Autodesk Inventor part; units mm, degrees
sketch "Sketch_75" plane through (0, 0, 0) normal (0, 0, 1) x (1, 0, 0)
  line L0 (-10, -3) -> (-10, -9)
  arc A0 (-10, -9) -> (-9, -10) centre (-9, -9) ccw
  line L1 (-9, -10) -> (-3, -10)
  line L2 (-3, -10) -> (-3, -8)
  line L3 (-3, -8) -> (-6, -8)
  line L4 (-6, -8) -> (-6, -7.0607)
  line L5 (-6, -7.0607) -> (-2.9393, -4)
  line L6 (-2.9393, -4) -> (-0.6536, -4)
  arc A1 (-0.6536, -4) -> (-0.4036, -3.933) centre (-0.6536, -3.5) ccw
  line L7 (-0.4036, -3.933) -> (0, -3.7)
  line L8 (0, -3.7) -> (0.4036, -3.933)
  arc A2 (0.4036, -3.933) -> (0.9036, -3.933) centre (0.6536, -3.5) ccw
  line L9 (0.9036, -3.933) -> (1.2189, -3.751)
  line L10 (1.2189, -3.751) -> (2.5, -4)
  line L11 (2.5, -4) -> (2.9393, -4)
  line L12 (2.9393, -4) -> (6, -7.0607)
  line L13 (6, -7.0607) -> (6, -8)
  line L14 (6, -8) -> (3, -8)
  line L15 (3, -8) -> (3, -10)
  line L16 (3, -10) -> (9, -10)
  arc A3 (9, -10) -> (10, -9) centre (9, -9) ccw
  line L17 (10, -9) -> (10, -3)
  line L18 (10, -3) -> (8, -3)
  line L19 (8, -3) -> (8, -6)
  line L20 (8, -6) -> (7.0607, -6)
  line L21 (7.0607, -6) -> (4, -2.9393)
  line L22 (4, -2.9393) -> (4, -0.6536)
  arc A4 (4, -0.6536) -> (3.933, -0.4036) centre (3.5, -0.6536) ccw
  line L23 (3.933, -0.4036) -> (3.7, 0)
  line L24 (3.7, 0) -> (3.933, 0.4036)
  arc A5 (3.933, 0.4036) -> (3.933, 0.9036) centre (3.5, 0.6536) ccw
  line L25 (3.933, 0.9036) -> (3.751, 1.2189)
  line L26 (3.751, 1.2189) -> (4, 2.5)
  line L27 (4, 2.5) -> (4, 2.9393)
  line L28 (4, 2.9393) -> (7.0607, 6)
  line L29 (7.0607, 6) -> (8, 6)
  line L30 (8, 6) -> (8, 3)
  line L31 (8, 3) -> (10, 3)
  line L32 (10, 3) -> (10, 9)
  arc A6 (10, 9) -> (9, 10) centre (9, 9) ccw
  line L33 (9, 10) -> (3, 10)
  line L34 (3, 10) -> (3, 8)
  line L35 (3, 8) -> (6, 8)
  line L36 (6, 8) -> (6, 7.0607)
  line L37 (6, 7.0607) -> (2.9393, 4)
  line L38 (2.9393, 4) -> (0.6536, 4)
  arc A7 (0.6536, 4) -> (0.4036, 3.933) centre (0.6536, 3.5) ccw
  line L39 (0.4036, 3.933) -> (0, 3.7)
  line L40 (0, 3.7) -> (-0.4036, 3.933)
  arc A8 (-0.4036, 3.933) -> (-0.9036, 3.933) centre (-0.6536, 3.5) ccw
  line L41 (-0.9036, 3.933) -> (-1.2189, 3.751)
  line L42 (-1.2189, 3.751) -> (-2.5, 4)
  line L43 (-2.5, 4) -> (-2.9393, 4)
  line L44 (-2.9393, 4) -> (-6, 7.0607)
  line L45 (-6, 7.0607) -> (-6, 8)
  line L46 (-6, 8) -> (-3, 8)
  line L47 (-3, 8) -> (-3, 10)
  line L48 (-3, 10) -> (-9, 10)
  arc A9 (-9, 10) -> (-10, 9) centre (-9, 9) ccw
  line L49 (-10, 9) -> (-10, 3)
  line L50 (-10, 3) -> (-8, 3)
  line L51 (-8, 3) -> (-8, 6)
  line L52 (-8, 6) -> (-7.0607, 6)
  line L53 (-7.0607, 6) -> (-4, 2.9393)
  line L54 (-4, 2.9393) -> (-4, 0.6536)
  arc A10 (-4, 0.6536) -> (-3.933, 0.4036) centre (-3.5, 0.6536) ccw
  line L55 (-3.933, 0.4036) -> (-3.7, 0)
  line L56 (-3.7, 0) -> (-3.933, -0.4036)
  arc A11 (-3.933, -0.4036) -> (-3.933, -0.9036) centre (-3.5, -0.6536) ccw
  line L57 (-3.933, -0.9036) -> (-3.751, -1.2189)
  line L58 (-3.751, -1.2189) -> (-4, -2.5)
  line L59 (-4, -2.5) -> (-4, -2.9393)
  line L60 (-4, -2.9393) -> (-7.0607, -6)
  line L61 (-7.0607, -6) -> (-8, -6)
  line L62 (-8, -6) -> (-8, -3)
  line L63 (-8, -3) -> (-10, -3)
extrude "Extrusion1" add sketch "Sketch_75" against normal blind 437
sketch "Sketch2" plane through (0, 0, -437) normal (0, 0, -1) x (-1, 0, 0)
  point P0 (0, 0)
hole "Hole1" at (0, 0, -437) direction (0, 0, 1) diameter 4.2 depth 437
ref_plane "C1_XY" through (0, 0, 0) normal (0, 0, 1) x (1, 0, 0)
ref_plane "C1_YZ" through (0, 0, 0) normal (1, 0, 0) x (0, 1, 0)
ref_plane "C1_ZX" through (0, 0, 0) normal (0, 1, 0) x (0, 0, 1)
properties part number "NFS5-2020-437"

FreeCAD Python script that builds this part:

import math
import FreeCAD as App
import Part
import Sketcher

V = App.Vector
Q = App.Units.Quantity

doc = App.newDocument("Part")
body = doc.addObject("PartDesign::Body", "Body")

sketch1 = body.newObject("Sketcher::SketchObject", "Sketch")
sketch1.AttachmentSupport = (doc.getObject("XY_Plane"), [""])
sketch1.MapMode = "FlatFace"
sketch1.addGeometry([
    Part.LineSegment(V(-8, -3, 0), V(-10, -3, 0)),
    Part.LineSegment(V(-10, -3, 0), V(-10, -9, 0)),
    Part.ArcOfCircle(Part.Circle(V(-9, -9, 0), V(0, 0, 1), 1), math.radians(180), math.radians(270)),
    Part.LineSegment(V(-9, -10, 0), V(-3, -10, 0)),
    Part.LineSegment(V(-3, -10, 0), V(-3, -8, 0)),
    Part.LineSegment(V(-3, -8, 0), V(-6, -8, 0)),
    Part.LineSegment(V(-6, -8, 0), V(-6, -7.06, 0)),
    Part.LineSegment(V(-6, -7.06, 0), V(-2.94, -4, 0)),
    Part.LineSegment(V(-2.94, -4, 0), V(-0.65, -4, 0)),
    Part.ArcOfCircle(Part.Circle(V(-0.65, -3.5, 0), V(0, 0, 1), 0.5), math.radians(-90), math.radians(-60)),
    Part.LineSegment(V(-0.4, -3.93, 0), V(0, -3.7, 0)),
    Part.LineSegment(V(0, -3.7, 0), V(0.4, -3.93, 0)),
    Part.ArcOfCircle(Part.Circle(V(0.65, -3.5, 0), V(0, 0, 1), 0.5), math.radians(-120), math.radians(-60)),
    Part.LineSegment(V(0.9, -3.93, 0), V(1.22, -3.75, 0)),
    Part.LineSegment(V(1.22, -3.75, 0), V(2.5, -4, 0)),
    Part.LineSegment(V(2.5, -4, 0), V(2.94, -4, 0)),
    Part.LineSegment(V(2.94, -4, 0), V(6, -7.06, 0)),
    Part.LineSegment(V(6, -7.06, 0), V(6, -8, 0)),
    Part.LineSegment(V(6, -8, 0), V(3, -8, 0)),
    Part.LineSegment(V(3, -8, 0), V(3, -10, 0)),
    Part.LineSegment(V(3, -10, 0), V(9, -10, 0)),
    Part.ArcOfCircle(Part.Circle(V(9, -9, 0), V(0, 0, 1), 1), math.radians(-90), math.radians(0)),
    Part.LineSegment(V(10, -9, 0), V(10, -3, 0)),
    Part.LineSegment(V(10, -3, 0), V(8, -3, 0)),
    Part.LineSegment(V(8, -3, 0), V(8, -6, 0)),
    Part.LineSegment(V(8, -6, 0), V(7.06, -6, 0)),
    Part.LineSegment(V(7.06, -6, 0), V(4, -2.94, 0)),
    Part.LineSegment(V(4, -2.94, 0), V(4, -0.65, 0)),
    Part.ArcOfCircle(Part.Circle(V(3.5, -0.65, 0), V(0, 0, 1), 0.5), math.radians(0), math.radians(30)),
    Part.LineSegment(V(3.93, -0.4, 0), V(3.7, 0, 0)),
    Part.LineSegment(V(3.7, 0, 0), V(3.93, 0.4, 0)),
    Part.ArcOfCircle(Part.Circle(V(3.5, 0.65, 0), V(0, 0, 1), 0.5), math.radians(-30), math.radians(30)),
    Part.LineSegment(V(3.93, 0.9, 0), V(3.75, 1.22, 0)),
    Part.LineSegment(V(3.75, 1.22, 0), V(4, 2.5, 0)),
    Part.LineSegment(V(4, 2.5, 0), V(4, 2.94, 0)),
    Part.LineSegment(V(4, 2.94, 0), V(7.06, 6, 0)),
    Part.LineSegment(V(7.06, 6, 0), V(8, 6, 0)),
    Part.LineSegment(V(8, 6, 0), V(8, 3, 0)),
    Part.LineSegment(V(8, 3, 0), V(10, 3, 0)),
    Part.LineSegment(V(10, 3, 0), V(10, 9, 0)),
    Part.ArcOfCircle(Part.Circle(V(9, 9, 0), V(0, 0, 1), 1), math.radians(0), math.radians(90)),
    Part.LineSegment(V(9, 10, 0), V(3, 10, 0)),
    Part.LineSegment(V(3, 10, 0), V(3, 8, 0)),
    Part.LineSegment(V(3, 8, 0), V(6, 8, 0)),
    Part.LineSegment(V(6, 8, 0), V(6, 7.06, 0)),
    Part.LineSegment(V(6, 7.06, 0), V(2.94, 4, 0)),
    Part.LineSegment(V(2.94, 4, 0), V(0.65, 4, 0)),
    Part.ArcOfCircle(Part.Circle(V(0.65, 3.5, 0), V(0, 0, 1), 0.5), math.radians(90), math.radians(120)),
    Part.LineSegment(V(0.4, 3.93, 0), V(0, 3.7, 0)),
    Part.LineSegment(V(0, 3.7, 0), V(-0.4, 3.93, 0)),
    Part.ArcOfCircle(Part.Circle(V(-0.65, 3.5, 0), V(0, 0, 1), 0.5), math.radians(60), math.radians(120)),
    Part.LineSegment(V(-0.9, 3.93, 0), V(-1.22, 3.75, 0)),
    Part.LineSegment(V(-1.22, 3.75, 0), V(-2.5, 4, 0)),
    Part.LineSegment(V(-2.5, 4, 0), V(-2.94, 4, 0)),
    Part.LineSegment(V(-2.94, 4, 0), V(-6, 7.06, 0)),
    Part.LineSegment(V(-6, 7.06, 0), V(-6, 8, 0)),
    Part.LineSegment(V(-6, 8, 0), V(-3, 8, 0)),
    Part.LineSegment(V(-3, 8, 0), V(-3, 10, 0)),
    Part.LineSegment(V(-3, 10, 0), V(-9, 10, 0)),
    Part.ArcOfCircle(Part.Circle(V(-9, 9, 0), V(0, 0, 1), 1), math.radians(90), math.radians(180)),
    Part.LineSegment(V(-10, 9, 0), V(-10, 3, 0)),
    Part.LineSegment(V(-10, 3, 0), V(-8, 3, 0)),
    Part.LineSegment(V(-8, 3, 0), V(-8, 6, 0)),
    Part.LineSegment(V(-8, 6, 0), V(-7.06, 6, 0)),
    Part.LineSegment(V(-7.06, 6, 0), V(-4, 2.94, 0)),
    Part.LineSegment(V(-4, 2.94, 0), V(-4, 0.65, 0)),
    Part.ArcOfCircle(Part.Circle(V(-3.5, 0.65, 0), V(0, 0, 1), 0.5), math.radians(180), math.radians(210)),
    Part.LineSegment(V(-3.93, 0.4, 0), V(-3.7, 0, 0)),
    Part.LineSegment(V(-3.7, 0, 0), V(-3.93, -0.4, 0)),
    Part.ArcOfCircle(Part.Circle(V(-3.5, -0.65, 0), V(0, 0, 1), 0.5), math.radians(150), math.radians(210)),
    Part.LineSegment(V(-3.93, -0.9, 0), V(-3.75, -1.22, 0)),
    Part.LineSegment(V(-3.75, -1.22, 0), V(-4, -2.5, 0)),
    Part.LineSegment(V(-4, -2.5, 0), V(-4, -2.94, 0)),
    Part.LineSegment(V(-4, -2.94, 0), V(-7.06, -6, 0)),
    Part.LineSegment(V(-7.06, -6, 0), V(-8, -6, 0)),
    Part.LineSegment(V(-8, -6, 0), V(-8, -3, 0)),
], False)
sketch1.addConstraint([
    Sketcher.Constraint("Coincident", 0, 2, 1, 1),
    Sketcher.Constraint("Tangent", 1, 2, 2, 1),
    Sketcher.Constraint("Tangent", 2, 2, 3, 1),
    Sketcher.Constraint("Coincident", 3, 2, 4, 1),
    Sketcher.Constraint("Coincident", 4, 2, 5, 1),
    Sketcher.Constraint("Coincident", 5, 2, 6, 1),
    Sketcher.Constraint("Coincident", 6, 2, 7, 1),
    Sketcher.Constraint("Coincident", 7, 2, 8, 1),
    Sketcher.Constraint("Tangent", 8, 2, 9, 1),
    Sketcher.Constraint("Tangent", 9, 2, 10, 1),
    Sketcher.Constraint("Coincident", 10, 2, 11, 1),
    Sketcher.Constraint("Tangent", 11, 2, 12, 1),
    Sketcher.Constraint("Tangent", 12, 2, 13, 1),
    Sketcher.Constraint("Coincident", 13, 2, 14, 1),
    Sketcher.Constraint("Coincident", 14, 2, 15, 1),
    Sketcher.Constraint("Coincident", 15, 2, 16, 1),
    Sketcher.Constraint("Coincident", 16, 2, 17, 1),
    Sketcher.Constraint("Coincident", 17, 2, 18, 1),
    Sketcher.Constraint("Coincident", 18, 2, 19, 1),
    Sketcher.Constraint("Coincident", 19, 2, 20, 1),
    Sketcher.Constraint("Tangent", 20, 2, 21, 1),
    Sketcher.Constraint("Tangent", 21, 2, 22, 1),
    Sketcher.Constraint("Coincident", 22, 2, 23, 1),
    Sketcher.Constraint("Coincident", 23, 2, 24, 1),
    Sketcher.Constraint("Coincident", 24, 2, 25, 1),
    Sketcher.Constraint("Coincident", 25, 2, 26, 1),
    Sketcher.Constraint("Coincident", 26, 2, 27, 1),
    Sketcher.Constraint("Tangent", 27, 2, 28, 1),
    Sketcher.Constraint("Tangent", 28, 2, 29, 1),
    Sketcher.Constraint("Coincident", 29, 2, 30, 1),
    Sketcher.Constraint("Tangent", 30, 2, 31, 1),
    Sketcher.Constraint("Tangent", 31, 2, 32, 1),
    Sketcher.Constraint("Coincident", 32, 2, 33, 1),
    Sketcher.Constraint("Coincident", 33, 2, 34, 1),
    Sketcher.Constraint("Coincident", 34, 2, 35, 1),
    Sketcher.Constraint("Coincident", 35, 2, 36, 1),
    Sketcher.Constraint("Coincident", 36, 2, 37, 1),
    Sketcher.Constraint("Coincident", 37, 2, 38, 1),
    Sketcher.Constraint("Coincident", 38, 2, 39, 1),
    Sketcher.Constraint("Tangent", 39, 2, 40, 1),
    Sketcher.Constraint("Tangent", 40, 2, 41, 1),
    Sketcher.Constraint("Coincident", 41, 2, 42, 1),
    Sketcher.Constraint("Coincident", 42, 2, 43, 1),
    Sketcher.Constraint("Coincident", 43, 2, 44, 1),
    Sketcher.Constraint("Coincident", 44, 2, 45, 1),
    Sketcher.Constraint("Coincident", 45, 2, 46, 1),
    Sketcher.Constraint("Tangent", 46, 2, 47, 1),
    Sketcher.Constraint("Tangent", 47, 2, 48, 1),
    Sketcher.Constraint("Coincident", 48, 2, 49, 1),
    Sketcher.Constraint("Tangent", 49, 2, 50, 1),
    Sketcher.Constraint("Tangent", 50, 2, 51, 1),
    Sketcher.Constraint("Coincident", 51, 2, 52, 1),
    Sketcher.Constraint("Coincident", 52, 2, 53, 1),
    Sketcher.Constraint("Coincident", 53, 2, 54, 1),
    Sketcher.Constraint("Coincident", 54, 2, 55, 1),
    Sketcher.Constraint("Coincident", 55, 2, 56, 1),
    Sketcher.Constraint("Coincident", 56, 2, 57, 1),
    Sketcher.Constraint("Coincident", 57, 2, 58, 1),
    Sketcher.Constraint("Tangent", 58, 2, 59, 1),
    Sketcher.Constraint("Tangent", 59, 2, 60, 1),
    Sketcher.Constraint("Coincident", 60, 2, 61, 1),
    Sketcher.Constraint("Coincident", 61, 2, 62, 1),
    Sketcher.Constraint("Coincident", 62, 2, 63, 1),
    Sketcher.Constraint("Coincident", 63, 2, 64, 1),
    Sketcher.Constraint("Coincident", 64, 2, 65, 1),
    Sketcher.Constraint("Tangent", 65, 2, 66, 1),
    Sketcher.Constraint("Tangent", 66, 2, 67, 1),
    Sketcher.Constraint("Coincident", 67, 2, 68, 1),
    Sketcher.Constraint("Tangent", 68, 2, 69, 1),
    Sketcher.Constraint("Tangent", 69, 2, 70, 1),
    Sketcher.Constraint("Coincident", 70, 2, 71, 1),
    Sketcher.Constraint("Coincident", 71, 2, 72, 1),
    Sketcher.Constraint("Coincident", 72, 2, 73, 1),
    Sketcher.Constraint("Coincident", 73, 2, 74, 1),
    Sketcher.Constraint("Coincident", 74, 2, 75, 1),
    Sketcher.Constraint("Coincident", 75, 2, 0, 1),
    Sketcher.Constraint("Horizontal", 0),
    Sketcher.Constraint("Vertical", 1),
    Sketcher.Constraint("Horizontal", 3),
    Sketcher.Constraint("Vertical", 4),
    Sketcher.Constraint("Horizontal", 5),
    Sketcher.Constraint("Vertical", 6),
    Sketcher.Constraint("Horizontal", 8),
    Sketcher.Constraint("Horizontal", 15),
    Sketcher.Constraint("Vertical", 17),
    Sketcher.Constraint("Horizontal", 18),
    Sketcher.Constraint("Vertical", 19),
    Sketcher.Constraint("Horizontal", 20),
    Sketcher.Constraint("Vertical", 22),
    Sketcher.Constraint("Horizontal", 23),
    Sketcher.Constraint("Vertical", 24),
    Sketcher.Constraint("Horizontal", 25),
    Sketcher.Constraint("Vertical", 27),
    Sketcher.Constraint("Vertical", 34),
    Sketcher.Constraint("Horizontal", 36),
    Sketcher.Constraint("Vertical", 37),
    Sketcher.Constraint("Horizontal", 38),
    Sketcher.Constraint("Vertical", 39),
    Sketcher.Constraint("Horizontal", 41),
    Sketcher.Constraint("Vertical", 42),
    Sketcher.Constraint("Horizontal", 43),
    Sketcher.Constraint("Vertical", 44),
    Sketcher.Constraint("Horizontal", 46),
    Sketcher.Constraint("Horizontal", 53),
    Sketcher.Constraint("Vertical", 55),
    Sketcher.Constraint("Horizontal", 56),
    Sketcher.Constraint("Vertical", 57),
    Sketcher.Constraint("Horizontal", 58),
    Sketcher.Constraint("Vertical", 60),
    Sketcher.Constraint("Horizontal", 61),
    Sketcher.Constraint("Vertical", 62),
    Sketcher.Constraint("Horizontal", 63),
    Sketcher.Constraint("Vertical", 65),
    Sketcher.Constraint("Vertical", 72),
    Sketcher.Constraint("Horizontal", 74),
    Sketcher.Constraint("Vertical", 75),
    Sketcher.Constraint("Equal", 9, 12),
    Sketcher.Constraint("Equal", 2, 21),
    Sketcher.Constraint("Equal", 12, 28),
    Sketcher.Constraint("Equal", 28, 31),
    Sketcher.Constraint("Equal", 21, 40),
    Sketcher.Constraint("Equal", 31, 47),
    Sketcher.Constraint("Equal", 47, 50),
    Sketcher.Constraint("Equal", 40, 59),
    Sketcher.Constraint("Equal", 50, 66),
    Sketcher.Constraint("Equal", 66, 69),
    Sketcher.Constraint("Symmetric", 2, 3, 40, 3, -1, 1),
    Sketcher.Constraint("Symmetric", 9, 3, 47, 3, -1, 1),
    Sketcher.Constraint("Symmetric", 12, 3, 50, 3, -1, 1),
    Sketcher.Constraint("Symmetric", 21, 3, 59, 3, -1, 1),
    Sketcher.Constraint("Symmetric", 28, 3, 66, 3, -1, 1),
    Sketcher.Constraint("Symmetric", 31, 3, 69, 3, -1, 1),
    Sketcher.Constraint("Symmetric", 4, 2, 42, 2, -1, 1),
    Sketcher.Constraint("Symmetric", 6, 2, 44, 2, -1, 1),
    Sketcher.Constraint("Symmetric", 10, 2, 48, 2, -1, 1),
    Sketcher.Constraint("Symmetric", 13, 2, 51, 2, -1, 1),
    Sketcher.Constraint("Symmetric", 14, 2, 52, 2, -1, 1),
    Sketcher.Constraint("Symmetric", 16, 2, 54, 2, -1, 1),
    Sketcher.Constraint("Symmetric", 18, 2, 56, 2, -1, 1),
    Sketcher.Constraint("Symmetric", 23, 2, 61, 2, -1, 1),
    Sketcher.Constraint("Symmetric", 25, 2, 63, 2, -1, 1),
    Sketcher.Constraint("Symmetric", 29, 2, 67, 2, -1, 1),
    Sketcher.Constraint("Symmetric", 32, 2, 70, 2, -1, 1),
    Sketcher.Constraint("Symmetric", 33, 2, 71, 2, -1, 1),
    Sketcher.Constraint("Symmetric", 35, 2, 73, 2, -1, 1),
    Sketcher.Constraint("Symmetric", 37, 2, 75, 2, -1, 1),
    Sketcher.Constraint("Symmetric", 9, 3, 12, 3, -2),
    Sketcher.Constraint("Symmetric", 2, 3, 21, 3, -2),
    Sketcher.Constraint("Symmetric", 31, 3, 66, 3, -2),
    Sketcher.Constraint("Symmetric", 7, 2, 15, 2, -2),
    Sketcher.Constraint("Symmetric", 6, 2, 16, 2, -2),
    Sketcher.Constraint("Symmetric", 4, 2, 18, 2, -2),
    Sketcher.Constraint("Symmetric", 37, 2, 61, 2, -2),
    Sketcher.Constraint("Symmetric", 35, 2, 63, 2, -2),
    Sketcher.Constraint("Symmetric", 34, 2, 64, 2, -2),
    Sketcher.Constraint("PointOnObject", 10, 2, -2),
    Sketcher.Constraint("PointOnObject", 29, 2, -1),
    Sketcher.Constraint("Parallel", 10, 13),
    Sketcher.Constraint("Perpendicular", 7, 16),
    Sketcher.Constraint("Parallel", 16, 26),
    Sketcher.Constraint("Perpendicular", 13, 29),
    Sketcher.Constraint("Parallel", 29, 32),
    Sketcher.Constraint("Perpendicular", 14, 33),
    Sketcher.Constraint("Perpendicular", 26, 35),
    Sketcher.Constraint("Parallel", 35, 45),
    Sketcher.Constraint("Perpendicular", 45, 54),
    Sketcher.Constraint("Perpendicular", 64, 73),
    Sketcher.Constraint("Equal", 58, 1),
    Sketcher.Constraint("Equal", 61, 4),
    Sketcher.Constraint("Equal", 74, 6),
    Sketcher.Constraint("Equal", 56, 24),
    Sketcher.Constraint("Equal", 46, 27),
    Sketcher.Constraint("Equal", 53, 34),
    Sketcher.Constraint("Equal", 16, 26),
    Sketcher.Constraint("Equal", 11, 29),
    Sketcher.Constraint("Radius", 2, Q("1 mm")),
    Sketcher.Constraint("Radius", 9, Q("0.5 mm")),
    Sketcher.Constraint("DistanceX", 0, 2, 0, 1, Q("2 mm")),
    Sketcher.Constraint("DistanceX", 3, 1, 3, 2, Q("6 mm")),
    Sketcher.Constraint("DistanceX", 5, 2, 5, 1, Q("3 mm")),
    Sketcher.Constraint("Angle", 14, Q("-10.999 deg")),
    Sketcher.Constraint("DistanceX", 2, 3, -1, 1, Q("9 mm")),
    Sketcher.Constraint("DistanceY", 7, 2, -1, 1, Q("4 mm")),
    Sketcher.Constraint("DistanceY", 10, 2, -1, 1, Q("3.7 mm")),
    Sketcher.Constraint("DistanceX", -1, 1, 14, 2, Q("2.5 mm")),
    Sketcher.Constraint("Distance", 10, Q("0.466 mm")),
    Sketcher.Constraint("DistanceX", 8, 1, 8, 2, Q("2.2857 mm")),
])
pad1 = body.newObject("PartDesign::Pad", "Pad")
pad1.Profile = sketch1
pad1.Length = 437
pad1.Reversed = True

sketch2 = body.newObject("Sketcher::SketchObject", "Sketch001")
sketch2.AttachmentSupport = (doc.getObject("XY_Plane"), [""])
sketch2.MapMode = "FlatFace"
sketch2.AttachmentOffset = App.Placement(V(0, 0, -437), App.Rotation())
sketch2.addGeometry(Part.Circle(V(0, 0, 0), V(0, 0, 1), 2.1), False)
sketch2.addConstraint([
    Sketcher.Constraint("Coincident", 0, 3, -1, 1),
    Sketcher.Constraint("Diameter", 0, Q("4.2 mm")),
])
doc.recompute()
hole = body.newObject("PartDesign::Hole", "Hole")
hole.Profile = sketch2
hole.ThreadType = "None"
hole.Diameter = 4.2
hole.DepthType = "Dimension"
hole.Depth = 437
hole.DrillPoint = "Flat"
hole.Reversed = True

doc.recompute()
